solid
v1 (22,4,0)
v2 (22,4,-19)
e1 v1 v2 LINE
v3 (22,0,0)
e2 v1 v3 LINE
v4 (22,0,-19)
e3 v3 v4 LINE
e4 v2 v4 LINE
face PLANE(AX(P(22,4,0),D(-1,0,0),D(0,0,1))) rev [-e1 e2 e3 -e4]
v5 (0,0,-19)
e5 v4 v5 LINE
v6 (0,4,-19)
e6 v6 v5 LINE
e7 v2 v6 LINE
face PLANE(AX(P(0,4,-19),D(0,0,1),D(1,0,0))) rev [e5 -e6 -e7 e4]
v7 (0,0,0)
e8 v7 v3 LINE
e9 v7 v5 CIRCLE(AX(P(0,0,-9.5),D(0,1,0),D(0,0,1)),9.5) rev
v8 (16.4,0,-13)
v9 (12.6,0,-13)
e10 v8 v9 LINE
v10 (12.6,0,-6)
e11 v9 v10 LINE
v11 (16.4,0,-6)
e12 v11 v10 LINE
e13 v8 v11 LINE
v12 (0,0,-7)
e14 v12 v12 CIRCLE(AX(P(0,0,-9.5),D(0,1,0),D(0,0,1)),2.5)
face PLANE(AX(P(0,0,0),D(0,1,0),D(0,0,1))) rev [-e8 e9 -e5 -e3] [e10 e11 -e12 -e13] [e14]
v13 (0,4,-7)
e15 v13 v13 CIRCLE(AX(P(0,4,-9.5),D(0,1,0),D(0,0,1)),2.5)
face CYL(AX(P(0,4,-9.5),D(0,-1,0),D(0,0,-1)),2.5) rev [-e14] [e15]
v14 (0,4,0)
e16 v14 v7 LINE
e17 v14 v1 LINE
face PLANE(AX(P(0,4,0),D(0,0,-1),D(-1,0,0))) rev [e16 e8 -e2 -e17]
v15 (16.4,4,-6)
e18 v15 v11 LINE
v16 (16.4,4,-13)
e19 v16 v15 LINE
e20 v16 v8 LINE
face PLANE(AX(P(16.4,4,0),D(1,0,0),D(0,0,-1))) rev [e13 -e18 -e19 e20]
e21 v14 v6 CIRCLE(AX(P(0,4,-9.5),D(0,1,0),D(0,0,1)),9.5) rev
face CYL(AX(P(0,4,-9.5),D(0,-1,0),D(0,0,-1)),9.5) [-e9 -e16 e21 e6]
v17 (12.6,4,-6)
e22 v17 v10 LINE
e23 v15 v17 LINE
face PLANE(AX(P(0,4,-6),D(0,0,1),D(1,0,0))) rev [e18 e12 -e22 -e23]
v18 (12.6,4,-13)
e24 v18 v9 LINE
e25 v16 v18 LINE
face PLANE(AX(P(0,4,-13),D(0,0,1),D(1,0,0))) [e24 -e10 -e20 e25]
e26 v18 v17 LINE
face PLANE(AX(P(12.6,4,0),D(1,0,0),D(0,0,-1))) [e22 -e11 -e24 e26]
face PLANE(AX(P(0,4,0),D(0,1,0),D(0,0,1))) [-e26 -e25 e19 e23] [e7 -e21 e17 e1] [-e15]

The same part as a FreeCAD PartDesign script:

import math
import FreeCAD as App
import Part
import Sketcher

V = App.Vector

doc = App.newDocument("Part")
body = doc.addObject("PartDesign::Body", "Body")

sketch1 = body.newObject("Sketcher::SketchObject", "Sketch")
sketch1.AttachmentSupport = (doc.getObject("XZ_Plane"), [""])
sketch1.MapMode = "FlatFace"
sketch1.addGeometry(Part.LineSegment(V(0, 0, 0), V(22, 0, 0)), False)
sketch1.addGeometry(Part.LineSegment(V(22, 0, 0), V(22, -19, 0)), False)
sketch1.addGeometry(Part.LineSegment(V(22, -19, 0), V(0, -19, 0)), False)
sketch1.addGeometry(Part.ArcOfCircle(Part.Circle(V(0, -9.5, 0), V(0, 0, 1), 9.5), math.radians(90), math.radians(270)), False)
sketch1.addGeometry(Part.Circle(V(0, -9.5, 0), V(0, 0, 1), 2.5), False)
sketch1.addGeometry(Part.LineSegment(V(16.4, -6, 0), V(12.6, -6, 0)), False)
sketch1.addGeometry(Part.LineSegment(V(12.6, -6, 0), V(12.6, -13, 0)), False)
sketch1.addGeometry(Part.LineSegment(V(12.6, -13, 0), V(16.4, -13, 0)), False)
sketch1.addGeometry(Part.LineSegment(V(16.4, -13, 0), V(16.4, -6, 0)), False)
sketch1.addConstraint(Sketcher.Constraint("Coincident", 0, 2, 1, 1))
sketch1.addConstraint(Sketcher.Constraint("Coincident", 1, 2, 2, 1))
sketch1.addConstraint(Sketcher.Constraint("Tangent", 2, 2, 3, 2))
sketch1.addConstraint(Sketcher.Constraint("Tangent", 3, 1, 0, 1))
sketch1.addConstraint(Sketcher.Constraint("Coincident", 5, 2, 6, 1))
sketch1.addConstraint(Sketcher.Constraint("Coincident", 6, 2, 7, 1))
sketch1.addConstraint(Sketcher.Constraint("Coincident", 7, 2, 8, 1))
sketch1.addConstraint(Sketcher.Constraint("Coincident", 8, 2, 5, 1))
sketch1.addConstraint(Sketcher.Constraint("Horizontal", 0))
sketch1.addConstraint(Sketcher.Constraint("Vertical", 1))
sketch1.addConstraint(Sketcher.Constraint("Horizontal", 2))
sketch1.addConstraint(Sketcher.Constraint("Horizontal", 5))
sketch1.addConstraint(Sketcher.Constraint("Vertical", 6))
sketch1.addConstraint(Sketcher.Constraint("Horizontal", 7))
sketch1.addConstraint(Sketcher.Constraint("Vertical", 8))
sketch1.addConstraint(Sketcher.Constraint("Coincident", 3, 1, -1, 1))
sketch1.addConstraint(Sketcher.Constraint("Coincident", 4, 3, 3, 3))
sketch1.addConstraint(Sketcher.Constraint("Diameter", 4, 5.0))
sketch1.addConstraint(Sketcher.Constraint("Radius", 3, 9.5))
sketch1.addConstraint(Sketcher.Constraint("DistanceX", 0, 1, 0, 2, 22.0))
sketch1.addConstraint(Sketcher.Constraint("DistanceY", 6, 2, 6, 1, 7.0))
sketch1.addConstraint(Sketcher.Constraint("DistanceX", 5, 2, 5, 1, 3.8))
sketch1.addConstraint(Sketcher.Constraint("DistanceY", 5, 2, -1, 1, 6.0))
sketch1.addConstraint(Sketcher.Constraint("DistanceX", -1, 1, 5, 2, 12.6))
pad1 = body.newObject("PartDesign::Pad", "Pad")
pad1.Profile = sketch1
pad1.Length = 4
pad1.Reversed = True

doc.recompute()
